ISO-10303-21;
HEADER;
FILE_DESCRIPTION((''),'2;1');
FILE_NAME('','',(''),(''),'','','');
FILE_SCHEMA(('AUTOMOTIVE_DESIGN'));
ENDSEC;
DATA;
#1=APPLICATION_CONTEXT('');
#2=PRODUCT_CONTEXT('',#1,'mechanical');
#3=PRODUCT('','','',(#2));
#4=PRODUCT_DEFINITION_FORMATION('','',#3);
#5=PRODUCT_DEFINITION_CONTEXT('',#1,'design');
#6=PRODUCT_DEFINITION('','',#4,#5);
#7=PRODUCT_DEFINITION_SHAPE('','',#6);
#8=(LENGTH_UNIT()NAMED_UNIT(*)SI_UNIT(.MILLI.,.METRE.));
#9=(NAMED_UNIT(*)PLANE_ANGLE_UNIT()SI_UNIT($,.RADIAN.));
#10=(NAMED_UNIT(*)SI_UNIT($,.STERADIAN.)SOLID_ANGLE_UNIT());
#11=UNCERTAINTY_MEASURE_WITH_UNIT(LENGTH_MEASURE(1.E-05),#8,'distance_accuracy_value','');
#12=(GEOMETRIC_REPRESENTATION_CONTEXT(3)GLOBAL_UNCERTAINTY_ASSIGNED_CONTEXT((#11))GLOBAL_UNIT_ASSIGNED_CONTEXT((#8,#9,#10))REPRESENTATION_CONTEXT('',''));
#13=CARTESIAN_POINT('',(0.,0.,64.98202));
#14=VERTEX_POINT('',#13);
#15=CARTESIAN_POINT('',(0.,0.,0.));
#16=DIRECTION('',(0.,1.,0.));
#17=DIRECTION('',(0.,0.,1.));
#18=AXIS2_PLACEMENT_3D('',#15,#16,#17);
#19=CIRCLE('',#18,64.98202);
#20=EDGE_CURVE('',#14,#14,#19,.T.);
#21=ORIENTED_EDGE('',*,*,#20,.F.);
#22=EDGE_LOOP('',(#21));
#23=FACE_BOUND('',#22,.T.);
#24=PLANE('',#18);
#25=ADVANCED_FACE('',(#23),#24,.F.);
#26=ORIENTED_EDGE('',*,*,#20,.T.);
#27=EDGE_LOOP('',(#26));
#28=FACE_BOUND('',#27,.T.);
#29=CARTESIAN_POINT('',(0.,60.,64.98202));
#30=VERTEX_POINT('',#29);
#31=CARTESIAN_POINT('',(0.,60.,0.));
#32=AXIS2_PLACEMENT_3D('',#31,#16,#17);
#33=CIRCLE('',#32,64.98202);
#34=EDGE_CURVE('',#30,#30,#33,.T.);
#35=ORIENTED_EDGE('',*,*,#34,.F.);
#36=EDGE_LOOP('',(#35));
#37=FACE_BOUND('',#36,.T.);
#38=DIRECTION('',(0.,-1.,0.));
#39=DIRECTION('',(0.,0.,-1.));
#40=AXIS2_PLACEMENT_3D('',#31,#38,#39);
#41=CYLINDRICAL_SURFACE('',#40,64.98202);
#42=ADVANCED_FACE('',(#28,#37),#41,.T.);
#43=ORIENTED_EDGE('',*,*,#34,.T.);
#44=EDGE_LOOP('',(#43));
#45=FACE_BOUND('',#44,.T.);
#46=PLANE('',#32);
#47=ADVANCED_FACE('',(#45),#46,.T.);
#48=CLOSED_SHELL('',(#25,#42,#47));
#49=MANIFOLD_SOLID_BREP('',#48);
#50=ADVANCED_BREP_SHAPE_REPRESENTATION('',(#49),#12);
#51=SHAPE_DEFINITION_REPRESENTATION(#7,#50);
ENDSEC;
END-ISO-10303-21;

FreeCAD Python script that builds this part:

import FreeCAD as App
import Part
import Sketcher

V = App.Vector
Q = App.Units.Quantity

doc = App.newDocument("Part")
body = doc.addObject("PartDesign::Body", "Body")

# Sketch on XZ plane
sketch1 = doc.addObject("Sketcher::SketchObject", "Sketch")
body.addObject(sketch1)
sketch1.AttachmentSupport = (doc.XZ_Plane, [""])
sketch1.MapMode = "FlatFace"
sketch1.addGeometry(Part.Circle(V(0, 0, 0), V(0, 0, 1), 65), False)
sketch1.addConstraint([
    Sketcher.Constraint("Coincident", 0, 3, -1, 1),
    Sketcher.Constraint("Diameter", 0, Q("129.964039 mm")),
])
pad1 = doc.addObject("PartDesign::Pad", "Pad")
body.addObject(pad1)
pad1.Profile = sketch1
pad1.Length = 60
pad1.Reversed = True

doc.recompute()
